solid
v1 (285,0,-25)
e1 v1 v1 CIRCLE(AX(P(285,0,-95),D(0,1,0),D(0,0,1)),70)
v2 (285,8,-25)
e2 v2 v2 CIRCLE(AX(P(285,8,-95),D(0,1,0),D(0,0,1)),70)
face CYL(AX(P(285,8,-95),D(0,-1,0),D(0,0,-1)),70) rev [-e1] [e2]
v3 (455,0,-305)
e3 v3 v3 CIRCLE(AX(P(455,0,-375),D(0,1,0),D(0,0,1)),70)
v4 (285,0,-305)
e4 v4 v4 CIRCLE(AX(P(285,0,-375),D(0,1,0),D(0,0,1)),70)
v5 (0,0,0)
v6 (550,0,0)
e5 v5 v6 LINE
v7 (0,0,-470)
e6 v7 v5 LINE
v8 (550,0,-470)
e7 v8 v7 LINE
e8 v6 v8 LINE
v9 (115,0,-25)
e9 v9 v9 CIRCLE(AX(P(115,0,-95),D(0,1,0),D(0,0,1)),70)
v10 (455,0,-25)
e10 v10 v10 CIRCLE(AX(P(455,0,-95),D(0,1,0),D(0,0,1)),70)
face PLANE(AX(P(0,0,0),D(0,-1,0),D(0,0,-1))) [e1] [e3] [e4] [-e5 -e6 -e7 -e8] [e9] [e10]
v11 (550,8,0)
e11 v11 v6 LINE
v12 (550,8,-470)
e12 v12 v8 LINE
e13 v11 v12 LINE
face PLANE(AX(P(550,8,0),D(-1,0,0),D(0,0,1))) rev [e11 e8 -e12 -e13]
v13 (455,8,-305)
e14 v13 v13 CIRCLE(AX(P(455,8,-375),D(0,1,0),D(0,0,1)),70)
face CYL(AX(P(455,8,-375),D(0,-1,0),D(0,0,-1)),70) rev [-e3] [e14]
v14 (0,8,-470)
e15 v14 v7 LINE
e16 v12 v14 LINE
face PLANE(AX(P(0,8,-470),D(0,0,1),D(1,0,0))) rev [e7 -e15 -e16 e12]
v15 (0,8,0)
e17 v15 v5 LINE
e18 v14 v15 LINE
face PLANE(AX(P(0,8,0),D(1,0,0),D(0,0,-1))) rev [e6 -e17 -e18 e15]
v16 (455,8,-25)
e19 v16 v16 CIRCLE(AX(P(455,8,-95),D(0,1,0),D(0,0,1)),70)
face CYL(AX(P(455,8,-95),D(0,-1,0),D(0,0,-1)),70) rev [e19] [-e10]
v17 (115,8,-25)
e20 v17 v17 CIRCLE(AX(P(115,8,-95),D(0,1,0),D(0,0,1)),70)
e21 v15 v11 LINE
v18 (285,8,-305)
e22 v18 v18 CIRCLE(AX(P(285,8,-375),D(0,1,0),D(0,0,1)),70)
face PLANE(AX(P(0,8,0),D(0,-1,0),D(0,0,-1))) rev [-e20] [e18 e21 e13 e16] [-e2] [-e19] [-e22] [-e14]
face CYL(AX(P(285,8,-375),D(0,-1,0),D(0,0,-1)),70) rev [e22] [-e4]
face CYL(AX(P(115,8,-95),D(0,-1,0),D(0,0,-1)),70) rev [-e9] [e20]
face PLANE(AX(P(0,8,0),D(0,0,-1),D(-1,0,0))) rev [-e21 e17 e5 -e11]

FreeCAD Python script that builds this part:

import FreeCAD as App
import Part
import Sketcher
from FreeCAD import Vector
Q = App.Units.Quantity


def add_polygon(sketch, points):
    """Adds a closed chain of lines whose ends are joined by coincident constraints."""
    first, n = sketch.GeometryCount, len(points)
    for a, b in zip(points, points[1:] + points[:1]):
        sketch.addGeometry(Part.LineSegment(App.Vector(*a, 0), App.Vector(*b, 0)), False)
    for i in range(n):
        sketch.addConstraint(Sketcher.Constraint("Coincident", first + i, 2, first + (i + 1) % n, 1))

doc = App.newDocument("Part")
body = doc.addObject("PartDesign::Body", "Body")

# Sketch on XZ plane
sketch1 = body.newObject("Sketcher::SketchObject", "Sketch")
sketch1.AttachmentSupport = (doc.getObject("XZ_Plane"), [""])
sketch1.MapMode = "FlatFace"
add_polygon(sketch1, [(0, -470), (0, 0), (550, 0), (550, -470)])  # lines 0-3
sketch1.addConstraint([
    Sketcher.Constraint("Vertical", 0),
    Sketcher.Constraint("Horizontal", 1),
    Sketcher.Constraint("Vertical", 2),
    Sketcher.Constraint("Horizontal", 3),
    Sketcher.Constraint("Coincident", 0, 2, -1, 1),
    Sketcher.Constraint("DistanceX", 1, 1, 1, 2, Q("550 mm")),
    Sketcher.Constraint("DistanceY", 0, 1, 0, 2, Q("470 mm")),
])
pad1 = body.newObject("PartDesign::Pad", "Pad")
pad1.Profile = sketch1
pad1.Length = 8
pad1.Reversed = True

# Sketch on XZ plane
sketch2 = body.newObject("Sketcher::SketchObject", "Sketch001")
sketch2.AttachmentSupport = (doc.getObject("XZ_Plane"), [""])
sketch2.MapMode = "FlatFace"
sketch2.addGeometry([
    Part.Circle(Vector(455, -95, 0), Vector(0, 0, 1), 70),  # 0
    Part.Circle(Vector(285, -95, 0), Vector(0, 0, 1), 70),  # 1
    Part.Circle(Vector(115, -95, 0), Vector(0, 0, 1), 70),  # 2
    Part.Circle(Vector(455, -375, 0), Vector(0, 0, 1), 70),  # 3
    Part.Circle(Vector(285, -375, 0), Vector(0, 0, 1), 70),  # 4
], False)
sketch2.addConstraint([
    Sketcher.Constraint("Equal", 0, 1),
    Sketcher.Constraint("Equal", 1, 2),
    Sketcher.Constraint("Equal", 2, 3),
    Sketcher.Constraint("Equal", 3, 4),
    Sketcher.Constraint("Horizontal", 0, 3, 1, 3),
    Sketcher.Constraint("Horizontal", 1, 3, 2, 3),
    Sketcher.Constraint("Horizontal", 3, 3, 4, 3),
    Sketcher.Constraint("Vertical", 0, 3, 3, 3),
    Sketcher.Constraint("Vertical", 1, 3, 4, 3),
    Sketcher.Constraint("Diameter", 0, Q("140 mm")),
    Sketcher.Constraint("DistanceX", -1, 1, 0, 3, Q("455 mm")),
    Sketcher.Constraint("DistanceY", 0, 3, -1, 1, Q("95 mm")),
    Sketcher.Constraint("DistanceX", -1, 1, 1, 3, Q("285 mm")),
    Sketcher.Constraint("DistanceX", -1, 1, 2, 3, Q("115 mm")),
    Sketcher.Constraint("DistanceY", 3, 3, -1, 1, Q("375 mm")),
])
pocket1 = body.newObject("PartDesign::Pocket", "Pocket")
pocket1.Profile = sketch2
pocket1.Length = 8

doc.recompute()
